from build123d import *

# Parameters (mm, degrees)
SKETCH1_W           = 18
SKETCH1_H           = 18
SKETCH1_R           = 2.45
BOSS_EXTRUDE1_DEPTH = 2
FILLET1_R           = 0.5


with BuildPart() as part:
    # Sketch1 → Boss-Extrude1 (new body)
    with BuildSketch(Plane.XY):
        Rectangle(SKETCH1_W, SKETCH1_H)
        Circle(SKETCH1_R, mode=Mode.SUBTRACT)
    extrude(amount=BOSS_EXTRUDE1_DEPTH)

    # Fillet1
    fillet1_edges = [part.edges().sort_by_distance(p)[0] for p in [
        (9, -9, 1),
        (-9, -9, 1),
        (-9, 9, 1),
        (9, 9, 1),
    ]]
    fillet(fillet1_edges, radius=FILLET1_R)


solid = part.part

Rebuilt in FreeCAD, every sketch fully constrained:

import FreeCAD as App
import Part
import Sketcher
from FreeCAD import Vector


def edges_at(feature, points):
    """Names of the edges that pass closest to the given points."""
    edges = feature.Shape.Edges
    near = lambda p: min(range(len(edges)), key=lambda i: edges[i].distToShape(Part.Vertex(*p))[0])
    return sorted({f"Edge{near(p) + 1}" for p in points})

doc = App.newDocument("Part")
params = doc.addObject("Spreadsheet::Sheet", "Params")
for row, (alias, value) in enumerate([
    ("sketch1_diameter", "4.9 mm"),
    ("sketch1_width", "18 mm"),
    ("pad1_length", "2 mm"),
    ("fillet_radius", "0.5 mm"),
], start=1):
    params.set(f"A{row}", alias)
    params.set(f"B{row}", "=" + value)
    params.setAlias(f"B{row}", alias)

body = doc.addObject("PartDesign::Body", "Body")

# Sketch on XY plane
sketch1 = body.newObject("Sketcher::SketchObject", "Sketch")
sketch1.AttachmentSupport = (doc.getObject("XY_Plane"), [""])
sketch1.MapMode = "FlatFace"
sketch1.addGeometry([
    Part.LineSegment(Vector(-9, 9, 0), Vector(-9, -9, 0)),  # 0
    Part.LineSegment(Vector(-9, -9, 0), Vector(9, -9, 0)),  # 1
    Part.LineSegment(Vector(9, -9, 0), Vector(9, 9, 0)),  # 2
    Part.LineSegment(Vector(9, 9, 0), Vector(-9, 9, 0)),  # 3
    Part.Circle(Vector(0, 0, 0), Vector(0, 0, 1), 2.45),  # 4
], False)
sketch1.addConstraint([
    Sketcher.Constraint("Coincident", 0, 2, 1, 1),
    Sketcher.Constraint("Coincident", 1, 2, 2, 1),
    Sketcher.Constraint("Coincident", 2, 2, 3, 1),
    Sketcher.Constraint("Coincident", 3, 2, 0, 1),
    Sketcher.Constraint("Vertical", 0),
    Sketcher.Constraint("Horizontal", 1),
    Sketcher.Constraint("Vertical", 2),
    Sketcher.Constraint("Horizontal", 3),
    Sketcher.Constraint("Coincident", 4, 3, -1, 1),
    Sketcher.Constraint("Symmetric", 0, 2, 2, 2, -1, 1),
    Sketcher.Constraint("Equal", 3, 0),
    Sketcher.Constraint("Diameter", 4, 4.9),
    Sketcher.Constraint("DistanceX", 1, 1, 1, 2, 18.0),
])
sketch1.setExpression("Constraints[11]", "Params.sketch1_diameter")
sketch1.setExpression("Constraints[12]", "Params.sketch1_width")
pad1 = body.newObject("PartDesign::Pad", "Pad")
pad1.Profile = sketch1
pad1.setExpression("Length", "Params.pad1_length")
doc.recompute()

fillet = body.newObject("PartDesign::Fillet", "Fillet")
fillet.Base = (pad1, edges_at(pad1, [
    (9, -9, 1),
    (-9, -9, 1),
    (-9, 9, 1),
    (9, 9, 1),
]))
fillet.setExpression("Radius", "Params.fillet_radius")

doc.recompute()
